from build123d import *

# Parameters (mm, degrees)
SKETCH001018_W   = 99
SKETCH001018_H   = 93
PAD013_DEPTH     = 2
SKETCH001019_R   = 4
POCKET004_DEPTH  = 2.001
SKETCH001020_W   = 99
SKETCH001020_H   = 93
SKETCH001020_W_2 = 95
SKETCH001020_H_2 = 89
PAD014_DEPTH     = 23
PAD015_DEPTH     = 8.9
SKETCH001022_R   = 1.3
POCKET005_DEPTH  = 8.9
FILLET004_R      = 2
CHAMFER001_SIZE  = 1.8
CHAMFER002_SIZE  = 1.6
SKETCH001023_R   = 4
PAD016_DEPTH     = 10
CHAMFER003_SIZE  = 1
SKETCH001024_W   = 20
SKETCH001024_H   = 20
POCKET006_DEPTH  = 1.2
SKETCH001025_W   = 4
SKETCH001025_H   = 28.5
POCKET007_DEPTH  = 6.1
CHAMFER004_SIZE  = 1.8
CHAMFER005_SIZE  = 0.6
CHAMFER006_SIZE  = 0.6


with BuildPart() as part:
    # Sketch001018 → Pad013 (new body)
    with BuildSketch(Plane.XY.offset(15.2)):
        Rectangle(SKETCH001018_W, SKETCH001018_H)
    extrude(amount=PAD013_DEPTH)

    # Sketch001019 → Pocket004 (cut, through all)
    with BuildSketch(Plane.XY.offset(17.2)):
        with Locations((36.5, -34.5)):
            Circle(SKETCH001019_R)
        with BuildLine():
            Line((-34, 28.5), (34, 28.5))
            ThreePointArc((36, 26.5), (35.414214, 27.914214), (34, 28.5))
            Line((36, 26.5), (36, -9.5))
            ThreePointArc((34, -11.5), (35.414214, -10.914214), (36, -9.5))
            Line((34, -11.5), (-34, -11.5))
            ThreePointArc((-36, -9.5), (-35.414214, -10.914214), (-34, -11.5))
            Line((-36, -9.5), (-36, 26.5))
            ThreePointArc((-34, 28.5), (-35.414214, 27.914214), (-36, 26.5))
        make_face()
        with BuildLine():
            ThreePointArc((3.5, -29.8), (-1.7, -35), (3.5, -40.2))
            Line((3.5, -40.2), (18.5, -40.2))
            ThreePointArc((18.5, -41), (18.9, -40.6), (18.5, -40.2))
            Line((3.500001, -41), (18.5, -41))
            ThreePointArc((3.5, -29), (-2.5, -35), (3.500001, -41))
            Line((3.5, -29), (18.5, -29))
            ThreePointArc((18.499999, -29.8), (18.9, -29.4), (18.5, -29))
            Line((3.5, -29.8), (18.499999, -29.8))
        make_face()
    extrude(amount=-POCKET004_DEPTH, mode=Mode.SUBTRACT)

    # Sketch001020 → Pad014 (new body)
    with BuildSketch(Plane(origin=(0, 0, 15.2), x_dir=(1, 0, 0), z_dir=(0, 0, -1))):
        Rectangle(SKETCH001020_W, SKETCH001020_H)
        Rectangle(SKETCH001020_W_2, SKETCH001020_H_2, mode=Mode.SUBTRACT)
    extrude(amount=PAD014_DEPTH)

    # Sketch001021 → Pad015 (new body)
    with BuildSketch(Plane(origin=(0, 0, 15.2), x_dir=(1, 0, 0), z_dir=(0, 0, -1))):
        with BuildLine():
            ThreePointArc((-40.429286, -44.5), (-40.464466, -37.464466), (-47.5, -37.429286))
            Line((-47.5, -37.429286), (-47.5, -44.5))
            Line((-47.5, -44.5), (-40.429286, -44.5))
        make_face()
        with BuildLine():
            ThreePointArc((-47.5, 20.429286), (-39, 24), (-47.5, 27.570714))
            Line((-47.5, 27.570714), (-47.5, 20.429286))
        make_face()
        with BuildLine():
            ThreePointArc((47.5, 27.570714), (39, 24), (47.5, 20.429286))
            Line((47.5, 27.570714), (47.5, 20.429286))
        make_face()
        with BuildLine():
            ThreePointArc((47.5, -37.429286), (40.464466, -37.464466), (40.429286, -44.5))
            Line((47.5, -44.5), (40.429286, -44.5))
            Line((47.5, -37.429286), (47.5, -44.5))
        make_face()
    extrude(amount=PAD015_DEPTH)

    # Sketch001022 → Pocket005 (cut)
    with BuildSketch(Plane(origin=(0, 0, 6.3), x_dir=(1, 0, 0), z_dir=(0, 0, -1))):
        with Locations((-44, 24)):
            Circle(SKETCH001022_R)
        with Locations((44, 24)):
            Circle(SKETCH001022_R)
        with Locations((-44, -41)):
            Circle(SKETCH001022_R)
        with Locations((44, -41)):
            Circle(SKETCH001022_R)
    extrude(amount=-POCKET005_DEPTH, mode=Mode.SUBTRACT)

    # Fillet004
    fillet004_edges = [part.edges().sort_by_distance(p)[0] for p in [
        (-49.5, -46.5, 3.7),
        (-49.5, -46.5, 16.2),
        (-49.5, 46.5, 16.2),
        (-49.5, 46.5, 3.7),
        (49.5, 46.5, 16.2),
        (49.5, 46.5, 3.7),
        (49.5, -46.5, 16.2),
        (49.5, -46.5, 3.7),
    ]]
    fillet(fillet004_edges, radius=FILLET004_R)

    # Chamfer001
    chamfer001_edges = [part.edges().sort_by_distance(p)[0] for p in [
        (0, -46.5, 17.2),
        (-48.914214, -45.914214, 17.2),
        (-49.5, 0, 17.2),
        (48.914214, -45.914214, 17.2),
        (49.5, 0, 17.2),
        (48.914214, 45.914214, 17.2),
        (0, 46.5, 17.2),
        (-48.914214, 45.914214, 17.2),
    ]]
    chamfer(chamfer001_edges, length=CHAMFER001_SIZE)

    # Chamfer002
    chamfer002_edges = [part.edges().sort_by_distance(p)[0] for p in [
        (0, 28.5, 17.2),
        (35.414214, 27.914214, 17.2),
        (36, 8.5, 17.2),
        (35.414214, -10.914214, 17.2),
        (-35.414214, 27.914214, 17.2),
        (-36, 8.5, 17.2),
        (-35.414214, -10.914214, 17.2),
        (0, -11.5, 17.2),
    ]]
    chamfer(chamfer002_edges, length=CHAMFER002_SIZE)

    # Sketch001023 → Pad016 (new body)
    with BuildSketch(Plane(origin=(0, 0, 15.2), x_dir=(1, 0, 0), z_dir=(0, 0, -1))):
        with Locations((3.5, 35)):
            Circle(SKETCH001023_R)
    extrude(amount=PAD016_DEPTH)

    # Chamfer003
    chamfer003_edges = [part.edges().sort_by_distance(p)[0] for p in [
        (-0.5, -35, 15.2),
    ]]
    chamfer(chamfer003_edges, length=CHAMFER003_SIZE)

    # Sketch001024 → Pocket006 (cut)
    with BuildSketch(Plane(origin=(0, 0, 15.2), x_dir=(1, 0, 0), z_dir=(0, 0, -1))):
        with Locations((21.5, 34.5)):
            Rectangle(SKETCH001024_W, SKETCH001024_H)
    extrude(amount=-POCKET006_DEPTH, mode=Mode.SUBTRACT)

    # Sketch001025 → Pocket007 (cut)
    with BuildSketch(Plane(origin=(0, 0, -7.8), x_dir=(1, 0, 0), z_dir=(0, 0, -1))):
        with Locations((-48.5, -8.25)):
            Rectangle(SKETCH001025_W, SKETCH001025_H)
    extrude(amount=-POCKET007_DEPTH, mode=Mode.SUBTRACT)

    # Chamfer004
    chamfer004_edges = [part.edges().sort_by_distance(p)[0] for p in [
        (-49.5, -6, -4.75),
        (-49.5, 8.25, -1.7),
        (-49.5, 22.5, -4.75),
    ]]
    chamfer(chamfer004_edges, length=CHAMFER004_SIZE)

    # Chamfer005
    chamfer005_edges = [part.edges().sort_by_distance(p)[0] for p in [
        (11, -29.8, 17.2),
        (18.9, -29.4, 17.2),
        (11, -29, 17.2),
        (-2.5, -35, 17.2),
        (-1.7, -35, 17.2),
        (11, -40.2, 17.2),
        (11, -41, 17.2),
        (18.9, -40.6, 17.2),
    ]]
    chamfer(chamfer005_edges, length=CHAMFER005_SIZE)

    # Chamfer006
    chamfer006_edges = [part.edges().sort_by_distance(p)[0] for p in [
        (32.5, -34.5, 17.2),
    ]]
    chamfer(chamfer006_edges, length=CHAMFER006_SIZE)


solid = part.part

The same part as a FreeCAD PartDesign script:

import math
import FreeCAD as App
import Part
import Sketcher
from FreeCAD import Vector
Q = App.Units.Quantity


def edges_at(feature, points):
    """Names of the edges that pass closest to the given points."""
    edges = feature.Shape.Edges
    near = lambda p: min(range(len(edges)), key=lambda i: edges[i].distToShape(Part.Vertex(*p))[0])
    return sorted({f"Edge{near(p) + 1}" for p in points})

doc = App.newDocument("Part")
body = doc.addObject("PartDesign::Body", "Body")

# Sketch on XY plane
sketch1 = body.newObject("Sketcher::SketchObject", "Sketch")
sketch1.AttachmentSupport = (doc.getObject("XY_Plane"), [""])
sketch1.MapMode = "FlatFace"
sketch1.AttachmentOffset = App.Placement(Vector(0, 0, 15.2), App.Rotation())
sketch1.addGeometry([
    Part.LineSegment(Vector(-49.5, 46.5, 0), Vector(-49.5, -46.5, 0)),
    Part.LineSegment(Vector(-49.5, -46.5, 0), Vector(49.5, -46.5, 0)),
    Part.LineSegment(Vector(49.5, -46.5, 0), Vector(49.5, 46.5, 0)),
    Part.LineSegment(Vector(49.5, 46.5, 0), Vector(-49.5, 46.5, 0)),
], False)
sketch1.addConstraint([
    Sketcher.Constraint("Coincident", 0, 2, 1, 1),
    Sketcher.Constraint("Coincident", 1, 2, 2, 1),
    Sketcher.Constraint("Coincident", 2, 2, 3, 1),
    Sketcher.Constraint("Coincident", 3, 2, 0, 1),
    Sketcher.Constraint("Vertical", 0),
    Sketcher.Constraint("Horizontal", 1),
    Sketcher.Constraint("Vertical", 2),
    Sketcher.Constraint("Horizontal", 3),
    Sketcher.Constraint("Symmetric", 0, 2, 2, 2, -1, 1),
    Sketcher.Constraint("DistanceX", 1, 1, 1, 2, Q("99 mm")),
    Sketcher.Constraint("DistanceY", 0, 2, 0, 1, Q("93 mm")),
])
pad1 = body.newObject("PartDesign::Pad", "Pad")
pad1.Profile = sketch1
pad1.Length = 2

# Sketch on XY plane
sketch2 = body.newObject("Sketcher::SketchObject", "Sketch001")
sketch2.AttachmentSupport = (doc.getObject("XY_Plane"), [""])
sketch2.MapMode = "FlatFace"
sketch2.AttachmentOffset = App.Placement(Vector(0, 0, 17.2), App.Rotation())
sketch2.addGeometry([
    Part.Circle(Vector(36.5, -34.5, 0), Vector(0, 0, 1), 4),  # 0
    Part.LineSegment(Vector(34, 28.5, 0), Vector(-34, 28.5, 0)),  # 1
    Part.ArcOfCircle(Part.Circle(Vector(-34.000001, 26.500001, 0), Vector(0, 0, 1), 1.999999), math.radians(89.999957), math.radians(180.000043)),  # 2
    Part.LineSegment(Vector(-36, 26.5, 0), Vector(-36, -9.5, 0)),  # 3
    Part.ArcOfCircle(Part.Circle(Vector(-34.000001, -9.500001, 0), Vector(0, 0, 1), 1.999999), math.radians(179.999957), math.radians(270.000043)),  # 4
    Part.LineSegment(Vector(-34, -11.5, 0), Vector(34, -11.5, 0)),  # 5
    Part.ArcOfCircle(Part.Circle(Vector(34.000001, -9.500001, 0), Vector(0, 0, 1), 1.999999), math.radians(-90.000043), math.radians(0.000043)),  # 6
    Part.LineSegment(Vector(36, -9.5, 0), Vector(36, 26.5, 0)),  # 7
    Part.ArcOfCircle(Part.Circle(Vector(34.000001, 26.500001, 0), Vector(0, 0, 1), 1.999999), math.radians(-0.000043), math.radians(90.000043)),  # 8
    Part.ArcOfCircle(Part.Circle(Vector(3.5, -35, 0), Vector(0, 0, 1), 5.2), math.radians(90), math.radians(270)),  # 9
    Part.LineSegment(Vector(3.5, -29.8, 0), Vector(18.499999, -29.8, 0)),  # 10
    Part.ArcOfCircle(Part.Circle(Vector(18.5, -29.4, 0), Vector(0, 0, 1), 0.4), math.radians(-90.000143), math.radians(90)),  # 11
    Part.LineSegment(Vector(18.5, -29, 0), Vector(3.5, -29, 0)),  # 12
    Part.ArcOfCircle(Part.Circle(Vector(3.5, -35, 0), Vector(0, 0, 1), 6), math.radians(90), math.radians(270.00001)),  # 13
    Part.LineSegment(Vector(3.500001, -41, 0), Vector(18.5, -41, 0)),  # 14
    Part.ArcOfCircle(Part.Circle(Vector(18.5, -40.6, 0), Vector(0, 0, 1), 0.4), math.radians(-90), math.radians(90)),  # 15
    Part.LineSegment(Vector(18.5, -40.2, 0), Vector(3.5, -40.2, 0)),  # 16
], False)
sketch2.addConstraint([
    Sketcher.Constraint("Tangent", 1, 2, 2, 1),
    Sketcher.Constraint("Tangent", 2, 2, 3, 1),
    Sketcher.Constraint("Tangent", 3, 2, 4, 1),
    Sketcher.Constraint("Tangent", 4, 2, 5, 1),
    Sketcher.Constraint("Tangent", 5, 2, 6, 1),
    Sketcher.Constraint("Tangent", 6, 2, 7, 1),
    Sketcher.Constraint("Tangent", 7, 2, 8, 1),
    Sketcher.Constraint("Tangent", 8, 2, 1, 1),
    Sketcher.Constraint("Tangent", 9, 1, 10, 1),
    Sketcher.Constraint("Coincident", 10, 2, 11, 1),
    Sketcher.Constraint("Tangent", 11, 2, 12, 1),
    Sketcher.Constraint("Tangent", 12, 2, 13, 1),
    Sketcher.Constraint("Tangent", 13, 2, 14, 1),
    Sketcher.Constraint("Tangent", 14, 2, 15, 1),
    Sketcher.Constraint("Tangent", 15, 2, 16, 1),
    Sketcher.Constraint("Tangent", 16, 2, 9, 2),
    Sketcher.Constraint("Horizontal", 1),
    Sketcher.Constraint("Vertical", 3),
    Sketcher.Constraint("Horizontal", 5),
    Sketcher.Constraint("Vertical", 7),
    Sketcher.Constraint("Horizontal", 10),
    Sketcher.Constraint("Horizontal", 12),
    Sketcher.Constraint("Horizontal", 14),
    Sketcher.Constraint("Horizontal", 16),
    Sketcher.Constraint("Coincident", 13, 3, 9, 3),
    Sketcher.Constraint("Equal", 2, 4),
    Sketcher.Constraint("Equal", 4, 6),
    Sketcher.Constraint("Equal", 6, 8),
    Sketcher.Constraint("Vertical", 11, 3, 15, 3),
    Sketcher.Constraint("Vertical", 15, 3, 10, 2),
    Sketcher.Constraint("Diameter", 0, Q("8 mm")),
    Sketcher.Constraint("Radius", 2, Q("1.999999 mm")),
    Sketcher.Constraint("Radius", 13, Q("6 mm")),
    Sketcher.Constraint("Radius", 9, Q("5.2 mm")),
    Sketcher.Constraint("DistanceX", 1, 2, 1, 1, Q("68 mm")),
    Sketcher.Constraint("DistanceX", 10, 1, 10, 2, Q("14.999999 mm")),
    Sketcher.Constraint("DistanceY", 3, 2, 3, 1, Q("36 mm")),
    Sketcher.Constraint("DistanceX", 2, 3, -1, 1, Q("34.000001 mm")),
    Sketcher.Constraint("DistanceY", 9, 3, -1, 1, Q("35 mm")),
    Sketcher.Constraint("DistanceY", 0, 3, 2, 3, Q("61.000001 mm")),
    Sketcher.Constraint("DistanceX", 9, 3, 0, 3, Q("33 mm")),
    Sketcher.Constraint("DistanceX", -1, 1, 0, 3, Q("36.5 mm")),
    Sketcher.Constraint("DistanceY", 0, 3, -1, 1, Q("34.5 mm")),
])
pocket1 = body.newObject("PartDesign::Pocket", "Pocket")
pocket1.Profile = sketch2
pocket1.Type = "ThroughAll"

# Sketch on XY plane
sketch3 = body.newObject("Sketcher::SketchObject", "Sketch002")
sketch3.AttachmentSupport = (doc.getObject("XY_Plane"), [""])
sketch3.MapMode = "FlatFace"
sketch3.AttachmentOffset = App.Placement(Vector(0, 0, 15.2), App.Rotation())
sketch3.addGeometry([
    Part.LineSegment(Vector(-49.5, -46.5, 0), Vector(-49.5, 46.5, 0)),  # 0
    Part.LineSegment(Vector(-49.5, 46.5, 0), Vector(49.5, 46.5, 0)),  # 1
    Part.LineSegment(Vector(49.5, 46.5, 0), Vector(49.5, -46.5, 0)),  # 2
    Part.LineSegment(Vector(49.5, -46.5, 0), Vector(-49.5, -46.5, 0)),  # 3
    Part.LineSegment(Vector(47.5, 44.5, 0), Vector(-47.5, 44.5, 0)),  # 4
    Part.LineSegment(Vector(-47.5, 44.5, 0), Vector(-47.5, -44.5, 0)),  # 5
    Part.LineSegment(Vector(-47.5, -44.5, 0), Vector(47.5, -44.5, 0)),  # 6
    Part.LineSegment(Vector(47.5, -44.5, 0), Vector(47.5, 44.5, 0)),  # 7
], False)
sketch3.addConstraint([
    Sketcher.Constraint("Coincident", 0, 2, 1, 1),
    Sketcher.Constraint("Coincident", 1, 2, 2, 1),
    Sketcher.Constraint("Coincident", 2, 2, 3, 1),
    Sketcher.Constraint("Coincident", 3, 2, 0, 1),
    Sketcher.Constraint("Coincident", 4, 2, 5, 1),
    Sketcher.Constraint("Coincident", 5, 2, 6, 1),
    Sketcher.Constraint("Coincident", 6, 2, 7, 1),
    Sketcher.Constraint("Coincident", 7, 2, 4, 1),
    Sketcher.Constraint("Vertical", 0),
    Sketcher.Constraint("Horizontal", 1),
    Sketcher.Constraint("Vertical", 2),
    Sketcher.Constraint("Horizontal", 3),
    Sketcher.Constraint("Horizontal", 4),
    Sketcher.Constraint("Vertical", 5),
    Sketcher.Constraint("Horizontal", 6),
    Sketcher.Constraint("Vertical", 7),
    Sketcher.Constraint("Symmetric", 0, 2, 2, 2, -1, 1),
    Sketcher.Constraint("Symmetric", 4, 2, 6, 2, -1, 1),
    Sketcher.Constraint("DistanceX", 1, 1, 1, 2, Q("99 mm")),
    Sketcher.Constraint("DistanceX", 4, 2, 4, 1, Q("95 mm")),
    Sketcher.Constraint("DistanceY", 0, 1, 0, 2, Q("93 mm")),
    Sketcher.Constraint("DistanceY", 5, 2, 5, 1, Q("89 mm")),
])
pad2 = body.newObject("PartDesign::Pad", "Pad001")
pad2.Profile = sketch3
pad2.Length = 23
pad2.Reversed = True

# Sketch on XY plane
sketch4 = body.newObject("Sketcher::SketchObject", "Sketch003")
sketch4.AttachmentSupport = (doc.getObject("XY_Plane"), [""])
sketch4.MapMode = "FlatFace"
sketch4.AttachmentOffset = App.Placement(Vector(0, 0, 15.2), App.Rotation())
sketch4.addGeometry([
    Part.ArcOfCircle(Part.Circle(Vector(-44, 41, 0), Vector(0, 0, 1), 5), math.radians(-134.427009), math.radians(44.427009)),  # 0
    Part.LineSegment(Vector(-47.5, 37.429286, 0), Vector(-47.5, 44.5, 0)),  # 1
    Part.LineSegment(Vector(-47.5, 44.5, 0), Vector(-40.429286, 44.5, 0)),  # 2
    Part.ArcOfCircle(Part.Circle(Vector(-44, -24, 0), Vector(0, 0, 1), 5), math.radians(-134.427006), math.radians(134.427006)),  # 3
    Part.LineSegment(Vector(-47.5, -27.570714, 0), Vector(-47.5, -20.429286, 0)),  # 4
    Part.ArcOfCircle(Part.Circle(Vector(44, -24, 0), Vector(0, 0, 1), 5), math.radians(45.572994), math.radians(314.427006)),  # 5
    Part.LineSegment(Vector(47.5, -20.429286, 0), Vector(47.5, -27.570714, 0)),  # 6
    Part.ArcOfCircle(Part.Circle(Vector(44, 41, 0), Vector(0, 0, 1), 5), math.radians(135.572991), math.radians(314.427009)),  # 7
    Part.LineSegment(Vector(40.429286, 44.5, 0), Vector(47.5, 44.5, 0)),  # 8
    Part.LineSegment(Vector(47.5, 44.5, 0), Vector(47.5, 37.429286, 0)),  # 9
], False)
sketch4.addConstraint([
    Sketcher.Constraint("Coincident", 0, 1, 1, 1),
    Sketcher.Constraint("Coincident", 1, 2, 2, 1),
    Sketcher.Constraint("Coincident", 2, 2, 0, 2),
    Sketcher.Constraint("Coincident", 3, 1, 4, 1),
    Sketcher.Constraint("Coincident", 4, 2, 3, 2),
    Sketcher.Constraint("Coincident", 5, 1, 6, 1),
    Sketcher.Constraint("Coincident", 6, 2, 5, 2),
    Sketcher.Constraint("Coincident", 7, 1, 8, 1),
    Sketcher.Constraint("Coincident", 8, 2, 9, 1),
    Sketcher.Constraint("Coincident", 9, 2, 7, 2),
    Sketcher.Constraint("Vertical", 1),
    Sketcher.Constraint("Horizontal", 2),
    Sketcher.Constraint("Vertical", 4),
    Sketcher.Constraint("Vertical", 6),
    Sketcher.Constraint("Horizontal", 8),
    Sketcher.Constraint("Vertical", 9),
    Sketcher.Constraint("Equal", 0, 3),
    Sketcher.Constraint("Equal", 3, 5),
    Sketcher.Constraint("Equal", 5, 7),
    Sketcher.Constraint("Symmetric", 3, 3, 5, 3, -2),
    Sketcher.Constraint("Symmetric", 0, 3, 7, 3, -2),
    Sketcher.Constraint("Symmetric", 1, 2, 8, 2, -2),
    Sketcher.Constraint("Horizontal", 4, 2, 5, 1),
    Sketcher.Constraint("Vertical", 0, 3, 3, 3),
    Sketcher.Constraint("Vertical", 1, 2, 3, 1),
    Sketcher.Constraint("Equal", 8, 1),
    Sketcher.Constraint("Radius", 0, Q("5 mm")),
    Sketcher.Constraint("DistanceX", 0, 3, -1, 1, Q("44 mm")),
    Sketcher.Constraint("DistanceY", -1, 1, 0, 3, Q("41 mm")),
    Sketcher.Constraint("DistanceY", 3, 3, -1, 1, Q("24 mm")),
    Sketcher.Constraint("DistanceX", 4, 2, 5, 1, Q("95 mm")),
])
pad3 = body.newObject("PartDesign::Pad", "Pad002")
pad3.Profile = sketch4
pad3.Length = 8.9
pad3.Reversed = True

# Sketch on XY plane
sketch5 = body.newObject("Sketcher::SketchObject", "Sketch004")
sketch5.AttachmentSupport = (doc.getObject("XY_Plane"), [""])
sketch5.MapMode = "FlatFace"
sketch5.AttachmentOffset = App.Placement(Vector(0, 0, 6.3), App.Rotation())
sketch5.addGeometry([
    Part.Circle(Vector(-44, -24, 0), Vector(0, 0, 1), 1.3),
    Part.Circle(Vector(44, -24, 0), Vector(0, 0, 1), 1.3),
    Part.Circle(Vector(-44, 41, 0), Vector(0, 0, 1), 1.3),
    Part.Circle(Vector(44, 41, 0), Vector(0, 0, 1), 1.3),
], False)
sketch5.addConstraint([
    Sketcher.Constraint("Equal", 0, 1),
    Sketcher.Constraint("Equal", 1, 2),
    Sketcher.Constraint("Equal", 2, 3),
    Sketcher.Constraint("Symmetric", 0, 3, 1, 3, -2),
    Sketcher.Constraint("Symmetric", 2, 3, 3, 3, -2),
    Sketcher.Constraint("Vertical", 0, 3, 2, 3),
    Sketcher.Constraint("Diameter", 0, Q("2.6 mm")),
    Sketcher.Constraint("DistanceX", 0, 3, -1, 1, Q("44 mm")),
    Sketcher.Constraint("DistanceY", 0, 3, -1, 1, Q("24 mm")),
    Sketcher.Constraint("DistanceY", -1, 1, 2, 3, Q("41 mm")),
])
pocket2 = body.newObject("PartDesign::Pocket", "Pocket001")
pocket2.Profile = sketch5
pocket2.Length = 8.9
pocket2.Reversed = True
doc.recompute()

fillet = body.newObject("PartDesign::Fillet", "Fillet")
fillet.Base = (pocket2, edges_at(pocket2, [
    (-49.5, -46.5, 4.7),
    (-49.5, -46.5, 4.7),
    (-49.5, 46.5, 4.7),
    (-49.5, 46.5, 4.7),
    (49.5, 46.5, 4.7),
    (49.5, 46.5, 4.7),
    (49.5, -46.5, 4.7),
    (49.5, -46.5, 4.7),
]))
fillet.Radius = 2
doc.recompute()

chamfer = body.newObject("PartDesign::Chamfer", "Chamfer")
chamfer.Base = (fillet, edges_at(fillet, [
    (0, -46.5, 17.2),
    (-48.914, -45.914, 17.2),
    (-49.5, 0, 17.2),
    (48.914, -45.914, 17.2),
    (49.5, 0, 17.2),
    (48.914, 45.914, 17.2),
    (0, 46.5, 17.2),
    (-48.914, 45.914, 17.2),
]))
chamfer.Size = 1.8
doc.recompute()

chamfer2 = body.newObject("PartDesign::Chamfer", "Chamfer001")
chamfer2.Base = (chamfer, edges_at(chamfer, [
    (0, 28.5, 17.2),
    (35.414, 27.914, 17.2),
    (36, 8.5, 17.2),
    (35.414, -10.914, 17.2),
    (-35.414, 27.914, 17.2),
    (-36, 8.5, 17.2),
    (-35.414, -10.914, 17.2),
    (0, -11.5, 17.2),
]))
chamfer2.Size = 1.6

# Sketch on XY plane
sketch6 = body.newObject("Sketcher::SketchObject", "Sketch005")
sketch6.AttachmentSupport = (doc.getObject("XY_Plane"), [""])
sketch6.MapMode = "FlatFace"
sketch6.AttachmentOffset = App.Placement(Vector(0, 0, 15.2), App.Rotation())
sketch6.addGeometry(Part.Circle(Vector(3.5, -35, 0), Vector(0, 0, 1), 4), False)
sketch6.addConstraint([
    Sketcher.Constraint("Diameter", 0, Q("8 mm")),
    Sketcher.Constraint("DistanceY", 0, 3, -1, 1, Q("35 mm")),
    Sketcher.Constraint("DistanceX", -1, 1, 0, 3, Q("3.5 mm")),
])
pad4 = body.newObject("PartDesign::Pad", "Pad003")
pad4.Profile = sketch6
pad4.Length = 10
pad4.Reversed = True
doc.recompute()

chamfer3 = body.newObject("PartDesign::Chamfer", "Chamfer002")
chamfer3.Base = (pad4, edges_at(pad4, [(-0.5, -35, 15.2)]))
chamfer3.Size = 1

# Sketch on XY plane
sketch7 = body.newObject("Sketcher::SketchObject", "Sketch006")
sketch7.AttachmentSupport = (doc.getObject("XY_Plane"), [""])
sketch7.MapMode = "FlatFace"
sketch7.AttachmentOffset = App.Placement(Vector(0, 0, 15.2), App.Rotation())
sketch7.addGeometry([
    Part.LineSegment(Vector(11.5, -44.5, 0), Vector(11.5, -24.5, 0)),
    Part.LineSegment(Vector(11.5, -24.5, 0), Vector(31.5, -24.5, 0)),
    Part.LineSegment(Vector(31.5, -24.5, 0), Vector(31.5, -44.5, 0)),
    Part.LineSegment(Vector(31.5, -44.5, 0), Vector(11.5, -44.5, 0)),
], False)
sketch7.addConstraint([
    Sketcher.Constraint("Coincident", 0, 2, 1, 1),
    Sketcher.Constraint("Coincident", 1, 2, 2, 1),
    Sketcher.Constraint("Coincident", 2, 2, 3, 1),
    Sketcher.Constraint("Coincident", 3, 2, 0, 1),
    Sketcher.Constraint("Vertical", 0),
    Sketcher.Constraint("Horizontal", 1),
    Sketcher.Constraint("Vertical", 2),
    Sketcher.Constraint("Horizontal", 3),
    Sketcher.Constraint("Equal", 3, 0),
    Sketcher.Constraint("DistanceX", 1, 1, 1, 2, Q("20 mm")),
    Sketcher.Constraint("DistanceX", -1, 1, 0, 2, Q("11.5 mm")),
    Sketcher.Constraint("DistanceY", 0, 2, -1, 1, Q("24.5 mm")),
])
pocket3 = body.newObject("PartDesign::Pocket", "Pocket002")
pocket3.Profile = sketch7
pocket3.Length = 1.2
pocket3.Reversed = True

# Sketch on XY plane
sketch8 = body.newObject("Sketcher::SketchObject", "Sketch007")
sketch8.AttachmentSupport = (doc.getObject("XY_Plane"), [""])
sketch8.MapMode = "FlatFace"
sketch8.AttachmentOffset = App.Placement(Vector(0, 0, -7.8), App.Rotation())
sketch8.addGeometry([
    Part.LineSegment(Vector(-50.5, -6, 0), Vector(-50.5, 22.5, 0)),
    Part.LineSegment(Vector(-50.5, 22.5, 0), Vector(-46.5, 22.5, 0)),
    Part.LineSegment(Vector(-46.5, 22.5, 0), Vector(-46.5, -6, 0)),
    Part.LineSegment(Vector(-46.5, -6, 0), Vector(-50.5, -6, 0)),
], False)
sketch8.addConstraint([
    Sketcher.Constraint("Coincident", 0, 2, 1, 1),
    Sketcher.Constraint("Coincident", 1, 2, 2, 1),
    Sketcher.Constraint("Coincident", 2, 2, 3, 1),
    Sketcher.Constraint("Coincident", 3, 2, 0, 1),
    Sketcher.Constraint("Vertical", 0),
    Sketcher.Constraint("Horizontal", 1),
    Sketcher.Constraint("Vertical", 2),
    Sketcher.Constraint("Horizontal", 3),
    Sketcher.Constraint("DistanceX", 1, 1, 1, 2, Q("4 mm")),
    Sketcher.Constraint("DistanceY", 0, 1, 0, 2, Q("28.5 mm")),
    Sketcher.Constraint("DistanceY", 2, 2, -1, 1, Q("6 mm")),
    Sketcher.Constraint("DistanceX", 0, 2, -1, 1, Q("50.5 mm")),
])
pocket4 = body.newObject("PartDesign::Pocket", "Pocket003")
pocket4.Profile = sketch8
pocket4.Length = 6.1
pocket4.Reversed = True
doc.recompute()

chamfer4 = body.newObject("PartDesign::Chamfer", "Chamfer003")
chamfer4.Base = (pocket4, edges_at(pocket4, [(-49.5, -6, -4.75), (-49.5, 8.25, -1.7), (-49.5, 22.5, -4.75)]))
chamfer4.Size = 1.8
doc.recompute()

chamfer5 = body.newObject("PartDesign::Chamfer", "Chamfer004")
chamfer5.Base = (chamfer4, edges_at(chamfer4, [
    (11, -29.8, 17.2),
    (18.9, -29.4, 17.2),
    (11, -29, 17.2),
    (-2.5, -35, 17.2),
    (-1.7, -35, 17.2),
    (11, -40.2, 17.2),
    (11, -41, 17.2),
    (18.9, -40.6, 17.2),
]))
chamfer5.Size = 0.6
doc.recompute()

chamfer6 = body.newObject("PartDesign::Chamfer", "Chamfer005")
chamfer6.Base = (chamfer5, edges_at(chamfer5, [(32.5, -34.5, 17.2)]))
chamfer6.Size = 0.6

doc.recompute()
